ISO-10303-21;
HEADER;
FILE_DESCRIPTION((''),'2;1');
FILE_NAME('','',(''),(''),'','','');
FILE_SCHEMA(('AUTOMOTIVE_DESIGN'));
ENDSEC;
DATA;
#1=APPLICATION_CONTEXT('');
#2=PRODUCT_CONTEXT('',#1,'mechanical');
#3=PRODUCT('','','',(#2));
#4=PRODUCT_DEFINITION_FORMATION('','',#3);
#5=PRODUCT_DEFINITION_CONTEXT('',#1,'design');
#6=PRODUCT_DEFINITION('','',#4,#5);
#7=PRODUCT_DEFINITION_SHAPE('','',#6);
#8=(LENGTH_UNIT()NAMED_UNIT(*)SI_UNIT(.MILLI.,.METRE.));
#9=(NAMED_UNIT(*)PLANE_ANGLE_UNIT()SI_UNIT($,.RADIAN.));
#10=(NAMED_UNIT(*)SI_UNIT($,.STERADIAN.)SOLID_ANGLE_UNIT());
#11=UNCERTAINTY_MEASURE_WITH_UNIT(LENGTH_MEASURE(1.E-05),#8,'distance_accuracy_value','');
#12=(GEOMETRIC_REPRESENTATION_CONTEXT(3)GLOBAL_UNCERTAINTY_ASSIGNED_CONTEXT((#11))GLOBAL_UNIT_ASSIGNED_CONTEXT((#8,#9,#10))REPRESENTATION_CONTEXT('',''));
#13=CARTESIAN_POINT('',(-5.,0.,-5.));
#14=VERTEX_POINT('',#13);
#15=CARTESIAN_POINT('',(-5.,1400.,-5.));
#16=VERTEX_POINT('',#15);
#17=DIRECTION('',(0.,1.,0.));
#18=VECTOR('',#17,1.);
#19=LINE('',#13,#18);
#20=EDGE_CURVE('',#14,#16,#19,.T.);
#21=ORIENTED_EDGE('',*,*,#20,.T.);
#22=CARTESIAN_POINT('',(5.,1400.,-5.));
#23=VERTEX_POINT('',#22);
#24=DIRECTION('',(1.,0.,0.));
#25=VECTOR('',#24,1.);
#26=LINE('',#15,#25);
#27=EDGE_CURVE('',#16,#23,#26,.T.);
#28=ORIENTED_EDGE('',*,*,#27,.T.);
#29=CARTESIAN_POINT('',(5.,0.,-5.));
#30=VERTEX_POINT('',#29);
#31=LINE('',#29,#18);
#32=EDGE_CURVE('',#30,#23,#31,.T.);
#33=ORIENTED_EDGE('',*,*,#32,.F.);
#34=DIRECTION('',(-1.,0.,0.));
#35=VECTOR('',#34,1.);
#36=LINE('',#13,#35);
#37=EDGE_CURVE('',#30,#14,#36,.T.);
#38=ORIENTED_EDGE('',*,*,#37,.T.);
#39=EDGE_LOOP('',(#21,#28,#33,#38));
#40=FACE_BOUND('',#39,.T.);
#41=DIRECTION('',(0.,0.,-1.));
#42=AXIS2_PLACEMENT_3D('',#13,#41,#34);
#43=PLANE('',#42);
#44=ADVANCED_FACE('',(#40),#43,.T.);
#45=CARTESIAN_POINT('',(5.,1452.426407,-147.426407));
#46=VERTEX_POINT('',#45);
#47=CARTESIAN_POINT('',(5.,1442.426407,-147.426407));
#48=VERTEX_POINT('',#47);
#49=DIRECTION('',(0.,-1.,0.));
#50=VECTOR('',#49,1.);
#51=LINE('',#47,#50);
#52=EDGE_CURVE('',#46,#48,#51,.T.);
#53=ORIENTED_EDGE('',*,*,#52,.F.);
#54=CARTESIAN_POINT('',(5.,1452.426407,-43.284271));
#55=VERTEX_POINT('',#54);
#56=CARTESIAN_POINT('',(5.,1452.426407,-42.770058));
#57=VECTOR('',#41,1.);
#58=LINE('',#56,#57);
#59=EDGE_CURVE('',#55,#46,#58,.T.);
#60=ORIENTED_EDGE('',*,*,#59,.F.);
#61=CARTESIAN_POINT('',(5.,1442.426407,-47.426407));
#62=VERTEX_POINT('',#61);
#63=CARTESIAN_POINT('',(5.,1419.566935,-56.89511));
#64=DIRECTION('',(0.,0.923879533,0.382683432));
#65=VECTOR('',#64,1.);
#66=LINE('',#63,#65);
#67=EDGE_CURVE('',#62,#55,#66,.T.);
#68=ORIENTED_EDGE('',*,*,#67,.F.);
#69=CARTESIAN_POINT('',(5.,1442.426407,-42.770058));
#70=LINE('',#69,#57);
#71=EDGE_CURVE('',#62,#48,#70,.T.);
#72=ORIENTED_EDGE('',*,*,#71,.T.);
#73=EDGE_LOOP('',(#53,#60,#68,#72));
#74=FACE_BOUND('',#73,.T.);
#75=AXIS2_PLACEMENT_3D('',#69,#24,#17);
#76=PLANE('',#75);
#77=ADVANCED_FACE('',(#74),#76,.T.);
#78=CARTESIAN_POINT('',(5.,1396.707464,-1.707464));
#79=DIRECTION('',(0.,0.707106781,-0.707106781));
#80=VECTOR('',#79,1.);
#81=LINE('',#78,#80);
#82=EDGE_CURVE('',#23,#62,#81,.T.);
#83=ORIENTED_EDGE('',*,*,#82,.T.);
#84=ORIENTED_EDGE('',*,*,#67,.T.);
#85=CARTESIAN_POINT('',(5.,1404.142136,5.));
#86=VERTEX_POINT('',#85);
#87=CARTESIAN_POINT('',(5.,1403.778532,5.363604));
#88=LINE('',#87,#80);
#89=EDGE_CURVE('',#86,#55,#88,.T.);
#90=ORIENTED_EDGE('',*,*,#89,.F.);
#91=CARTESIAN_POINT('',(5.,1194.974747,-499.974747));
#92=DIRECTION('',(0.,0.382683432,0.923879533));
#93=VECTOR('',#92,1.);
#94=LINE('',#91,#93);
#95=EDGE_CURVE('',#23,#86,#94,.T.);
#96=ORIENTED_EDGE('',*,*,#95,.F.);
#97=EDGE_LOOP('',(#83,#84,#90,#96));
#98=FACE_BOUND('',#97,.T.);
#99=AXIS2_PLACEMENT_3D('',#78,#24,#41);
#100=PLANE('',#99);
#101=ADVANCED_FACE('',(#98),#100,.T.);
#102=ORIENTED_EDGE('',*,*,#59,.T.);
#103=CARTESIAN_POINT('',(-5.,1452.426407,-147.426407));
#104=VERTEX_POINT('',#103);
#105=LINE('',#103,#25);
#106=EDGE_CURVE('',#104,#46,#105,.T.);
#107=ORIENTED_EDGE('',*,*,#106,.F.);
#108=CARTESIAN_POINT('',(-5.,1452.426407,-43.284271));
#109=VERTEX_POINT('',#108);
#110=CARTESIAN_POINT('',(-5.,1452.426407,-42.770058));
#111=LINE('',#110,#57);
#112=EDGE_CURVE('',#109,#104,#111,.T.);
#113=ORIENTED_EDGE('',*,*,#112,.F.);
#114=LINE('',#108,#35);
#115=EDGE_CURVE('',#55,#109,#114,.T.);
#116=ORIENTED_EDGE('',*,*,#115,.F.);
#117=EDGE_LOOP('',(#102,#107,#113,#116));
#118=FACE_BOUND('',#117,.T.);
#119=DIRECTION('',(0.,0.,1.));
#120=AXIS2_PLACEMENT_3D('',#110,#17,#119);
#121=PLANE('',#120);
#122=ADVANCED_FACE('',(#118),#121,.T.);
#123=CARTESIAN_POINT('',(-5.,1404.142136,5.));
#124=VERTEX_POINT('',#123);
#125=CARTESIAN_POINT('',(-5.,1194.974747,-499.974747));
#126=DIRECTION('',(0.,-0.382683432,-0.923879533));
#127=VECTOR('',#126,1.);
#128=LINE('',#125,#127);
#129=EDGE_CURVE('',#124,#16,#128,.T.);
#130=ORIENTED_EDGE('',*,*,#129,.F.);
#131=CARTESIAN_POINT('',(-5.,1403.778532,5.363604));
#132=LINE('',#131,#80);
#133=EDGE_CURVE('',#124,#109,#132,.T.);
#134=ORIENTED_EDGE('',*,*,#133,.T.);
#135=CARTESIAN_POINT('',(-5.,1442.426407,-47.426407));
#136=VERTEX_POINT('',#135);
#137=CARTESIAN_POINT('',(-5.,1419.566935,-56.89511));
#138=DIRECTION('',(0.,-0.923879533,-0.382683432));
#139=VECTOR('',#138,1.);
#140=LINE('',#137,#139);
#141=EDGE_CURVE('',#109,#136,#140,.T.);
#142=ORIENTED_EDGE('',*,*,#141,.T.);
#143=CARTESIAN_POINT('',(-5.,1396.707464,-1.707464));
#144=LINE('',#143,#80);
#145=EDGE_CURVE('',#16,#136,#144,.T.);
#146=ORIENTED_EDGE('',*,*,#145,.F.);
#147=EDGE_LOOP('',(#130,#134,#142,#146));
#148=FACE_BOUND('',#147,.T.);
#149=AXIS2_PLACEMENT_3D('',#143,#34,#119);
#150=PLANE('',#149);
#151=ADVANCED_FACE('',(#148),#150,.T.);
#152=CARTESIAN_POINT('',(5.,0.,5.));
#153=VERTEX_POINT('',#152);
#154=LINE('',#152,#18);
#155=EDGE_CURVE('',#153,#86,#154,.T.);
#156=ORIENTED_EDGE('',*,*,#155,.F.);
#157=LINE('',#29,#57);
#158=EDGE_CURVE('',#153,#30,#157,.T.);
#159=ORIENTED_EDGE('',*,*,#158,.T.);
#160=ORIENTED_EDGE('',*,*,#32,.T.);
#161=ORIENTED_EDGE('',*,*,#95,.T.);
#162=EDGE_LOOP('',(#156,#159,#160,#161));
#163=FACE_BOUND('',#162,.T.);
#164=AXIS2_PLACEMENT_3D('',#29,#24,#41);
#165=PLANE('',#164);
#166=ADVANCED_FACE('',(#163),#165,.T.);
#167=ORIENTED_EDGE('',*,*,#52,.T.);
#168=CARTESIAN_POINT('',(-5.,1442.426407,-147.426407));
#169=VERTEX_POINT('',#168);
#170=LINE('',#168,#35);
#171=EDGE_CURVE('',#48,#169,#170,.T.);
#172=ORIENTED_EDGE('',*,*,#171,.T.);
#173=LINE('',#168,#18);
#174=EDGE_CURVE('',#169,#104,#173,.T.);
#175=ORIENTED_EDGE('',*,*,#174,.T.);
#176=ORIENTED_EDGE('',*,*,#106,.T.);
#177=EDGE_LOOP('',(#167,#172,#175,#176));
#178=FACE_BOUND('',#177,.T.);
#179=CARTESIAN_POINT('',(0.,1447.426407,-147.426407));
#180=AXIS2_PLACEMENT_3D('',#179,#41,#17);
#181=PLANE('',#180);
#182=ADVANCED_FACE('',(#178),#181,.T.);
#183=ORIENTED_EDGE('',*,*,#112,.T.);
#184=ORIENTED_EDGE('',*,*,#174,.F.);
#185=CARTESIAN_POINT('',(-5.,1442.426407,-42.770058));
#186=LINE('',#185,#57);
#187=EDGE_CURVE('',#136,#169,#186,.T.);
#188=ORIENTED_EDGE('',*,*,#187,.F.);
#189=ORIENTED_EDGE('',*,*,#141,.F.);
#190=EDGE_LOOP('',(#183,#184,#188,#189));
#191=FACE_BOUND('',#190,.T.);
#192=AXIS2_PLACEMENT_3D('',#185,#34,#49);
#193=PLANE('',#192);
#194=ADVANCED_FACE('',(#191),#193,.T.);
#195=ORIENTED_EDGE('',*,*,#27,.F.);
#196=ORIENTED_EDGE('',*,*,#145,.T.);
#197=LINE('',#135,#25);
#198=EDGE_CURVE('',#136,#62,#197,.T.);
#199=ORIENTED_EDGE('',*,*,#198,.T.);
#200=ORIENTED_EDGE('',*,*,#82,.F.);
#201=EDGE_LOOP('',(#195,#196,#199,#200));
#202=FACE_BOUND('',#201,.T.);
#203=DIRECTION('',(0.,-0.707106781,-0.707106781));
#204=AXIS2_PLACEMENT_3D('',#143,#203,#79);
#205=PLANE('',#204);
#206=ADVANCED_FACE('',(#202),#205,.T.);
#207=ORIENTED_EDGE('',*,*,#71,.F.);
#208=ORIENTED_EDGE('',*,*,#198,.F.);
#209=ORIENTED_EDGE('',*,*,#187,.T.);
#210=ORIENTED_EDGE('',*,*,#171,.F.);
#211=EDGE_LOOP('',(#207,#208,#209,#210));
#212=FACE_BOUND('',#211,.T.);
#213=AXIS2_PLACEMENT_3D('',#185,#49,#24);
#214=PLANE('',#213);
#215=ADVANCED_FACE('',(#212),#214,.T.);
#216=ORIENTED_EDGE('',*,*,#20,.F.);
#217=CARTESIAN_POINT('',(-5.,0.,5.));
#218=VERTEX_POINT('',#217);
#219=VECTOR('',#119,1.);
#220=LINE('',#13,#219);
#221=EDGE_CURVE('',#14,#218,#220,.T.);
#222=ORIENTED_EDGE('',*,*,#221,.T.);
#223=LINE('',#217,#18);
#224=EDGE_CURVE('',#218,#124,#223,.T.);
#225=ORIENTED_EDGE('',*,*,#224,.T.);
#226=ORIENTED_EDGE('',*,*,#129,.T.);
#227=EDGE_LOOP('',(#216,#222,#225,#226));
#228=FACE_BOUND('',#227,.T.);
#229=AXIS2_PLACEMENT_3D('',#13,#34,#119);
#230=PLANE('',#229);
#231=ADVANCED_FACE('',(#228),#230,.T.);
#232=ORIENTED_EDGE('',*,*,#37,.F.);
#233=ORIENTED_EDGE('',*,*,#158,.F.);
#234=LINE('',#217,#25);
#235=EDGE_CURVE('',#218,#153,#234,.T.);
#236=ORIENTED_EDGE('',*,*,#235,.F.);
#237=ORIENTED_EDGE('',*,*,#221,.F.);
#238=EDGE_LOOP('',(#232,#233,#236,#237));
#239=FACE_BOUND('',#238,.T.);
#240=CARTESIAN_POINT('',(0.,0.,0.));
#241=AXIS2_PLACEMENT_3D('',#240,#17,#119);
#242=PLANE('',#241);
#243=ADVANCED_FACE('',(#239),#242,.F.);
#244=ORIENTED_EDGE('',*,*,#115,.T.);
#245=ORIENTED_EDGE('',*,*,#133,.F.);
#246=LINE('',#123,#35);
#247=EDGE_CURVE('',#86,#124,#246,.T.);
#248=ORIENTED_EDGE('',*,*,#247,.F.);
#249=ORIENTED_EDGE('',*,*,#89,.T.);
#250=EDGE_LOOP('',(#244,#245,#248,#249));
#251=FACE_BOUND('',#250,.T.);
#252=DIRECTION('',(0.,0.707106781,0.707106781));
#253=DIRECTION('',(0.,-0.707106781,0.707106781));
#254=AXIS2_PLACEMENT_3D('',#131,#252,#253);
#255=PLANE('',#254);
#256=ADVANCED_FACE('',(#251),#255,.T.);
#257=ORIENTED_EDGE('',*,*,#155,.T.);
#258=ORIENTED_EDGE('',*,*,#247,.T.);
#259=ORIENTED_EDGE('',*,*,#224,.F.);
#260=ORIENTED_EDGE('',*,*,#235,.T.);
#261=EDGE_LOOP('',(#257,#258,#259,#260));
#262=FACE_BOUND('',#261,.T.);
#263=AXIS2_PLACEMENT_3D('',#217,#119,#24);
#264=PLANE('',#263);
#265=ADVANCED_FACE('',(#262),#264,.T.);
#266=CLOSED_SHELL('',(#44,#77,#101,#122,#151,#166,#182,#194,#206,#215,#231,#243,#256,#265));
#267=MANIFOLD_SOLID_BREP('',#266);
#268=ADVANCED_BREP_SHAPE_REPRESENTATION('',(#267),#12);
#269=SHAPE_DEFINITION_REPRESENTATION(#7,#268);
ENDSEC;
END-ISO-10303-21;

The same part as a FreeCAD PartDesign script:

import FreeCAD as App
import Part
import Sketcher

V = App.Vector
Q = App.Units.Quantity

doc = App.newDocument("Part")
params = doc.addObject("Spreadsheet::Sheet", "Params")
for row, (alias, value) in enumerate([
    ("sketch1_width", "10 mm"),
    ("sketch2_width", "1400 mm"),
    ("sketch2_height", "100 mm"),
    ("sketch2_length", "60 mm"),
], start=1):
    params.set(f"A{row}", alias)
    params.set(f"B{row}", "=" + value)
    params.setAlias(f"B{row}", alias)

body = doc.addObject("PartDesign::Body", "Body")

# Sketch on XZ plane
sketch1 = doc.addObject("Sketcher::SketchObject", "Sketch")
body.addObject(sketch1)
sketch1.AttachmentSupport = (doc.XZ_Plane, [""])
sketch1.MapMode = "FlatFace"
sketch1.addGeometry([
    Part.LineSegment(V(-5, -5, 0), V(-5, 5, 0)),
    Part.LineSegment(V(-5, 5, 0), V(5, 5, 0)),
    Part.LineSegment(V(5, 5, 0), V(5, -5, 0)),
    Part.LineSegment(V(5, -5, 0), V(-5, -5, 0)),
], False)
sketch1.addConstraint([
    Sketcher.Constraint("Coincident", 0, 2, 1, 1),
    Sketcher.Constraint("Coincident", 1, 2, 2, 1),
    Sketcher.Constraint("Coincident", 2, 2, 3, 1),
    Sketcher.Constraint("Coincident", 3, 2, 0, 1),
    Sketcher.Constraint("Vertical", 0),
    Sketcher.Constraint("Horizontal", 1),
    Sketcher.Constraint("Vertical", 2),
    Sketcher.Constraint("Horizontal", 3),
    Sketcher.Constraint("Symmetric", 0, 2, 2, 2, -1, 1),
    Sketcher.Constraint("Equal", 3, 0),
    Sketcher.Constraint("DistanceX", 1, 1, 1, 2, Q("10 mm")),
])
sketch1.setExpression("Constraints[10]", "Params.sketch1_width")

# Sketch on YZ plane
sketch2 = doc.addObject("Sketcher::SketchObject", "Sketch001")
body.addObject(sketch2)
sketch2.AttachmentSupport = (doc.YZ_Plane, [""])
sketch2.MapMode = "FlatFace"
sketch2.addGeometry([
    Part.LineSegment(V(0, -5, 0), V(1400, -5, 0)),
    Part.LineSegment(V(1400, -5, 0), V(1442, -47, 0)),
    Part.LineSegment(V(1442, -47, 0), V(1442, -147, 0)),
], False)
sketch2.addConstraint([
    Sketcher.Constraint("Coincident", 0, 2, 1, 1),
    Sketcher.Constraint("Coincident", 1, 2, 2, 1),
    Sketcher.Constraint("Horizontal", 0),
    Sketcher.Constraint("Vertical", 2),
    Sketcher.Constraint("PointOnObject", 0, 1, -2),
    Sketcher.Constraint("DistanceX", 0, 1, 0, 2, Q("1400 mm")),
    Sketcher.Constraint("DistanceY", 2, 2, 2, 1, Q("100 mm")),
    Sketcher.Constraint("Angle", 1, Q("-45 deg")),
    Sketcher.Constraint("Distance", 1, Q("60 mm")),
    Sketcher.Constraint("DistanceY", 0, 1, -1, 1, Q("5 mm")),
])
sketch2.setExpression("Constraints[5]", "Params.sketch2_width")
sketch2.setExpression("Constraints[6]", "Params.sketch2_height")
sketch2.setExpression("Constraints[8]", "Params.sketch2_length")
doc.recompute()

additivepipe = doc.addObject("PartDesign::AdditivePipe", "AdditivePipe")
body.addObject(additivepipe)
additivepipe.Profile = sketch1
additivepipe.Spine = (sketch2, ["Edge1", "Edge2", "Edge3"])
additivepipe.Transition = "Right corner"

doc.recompute()
